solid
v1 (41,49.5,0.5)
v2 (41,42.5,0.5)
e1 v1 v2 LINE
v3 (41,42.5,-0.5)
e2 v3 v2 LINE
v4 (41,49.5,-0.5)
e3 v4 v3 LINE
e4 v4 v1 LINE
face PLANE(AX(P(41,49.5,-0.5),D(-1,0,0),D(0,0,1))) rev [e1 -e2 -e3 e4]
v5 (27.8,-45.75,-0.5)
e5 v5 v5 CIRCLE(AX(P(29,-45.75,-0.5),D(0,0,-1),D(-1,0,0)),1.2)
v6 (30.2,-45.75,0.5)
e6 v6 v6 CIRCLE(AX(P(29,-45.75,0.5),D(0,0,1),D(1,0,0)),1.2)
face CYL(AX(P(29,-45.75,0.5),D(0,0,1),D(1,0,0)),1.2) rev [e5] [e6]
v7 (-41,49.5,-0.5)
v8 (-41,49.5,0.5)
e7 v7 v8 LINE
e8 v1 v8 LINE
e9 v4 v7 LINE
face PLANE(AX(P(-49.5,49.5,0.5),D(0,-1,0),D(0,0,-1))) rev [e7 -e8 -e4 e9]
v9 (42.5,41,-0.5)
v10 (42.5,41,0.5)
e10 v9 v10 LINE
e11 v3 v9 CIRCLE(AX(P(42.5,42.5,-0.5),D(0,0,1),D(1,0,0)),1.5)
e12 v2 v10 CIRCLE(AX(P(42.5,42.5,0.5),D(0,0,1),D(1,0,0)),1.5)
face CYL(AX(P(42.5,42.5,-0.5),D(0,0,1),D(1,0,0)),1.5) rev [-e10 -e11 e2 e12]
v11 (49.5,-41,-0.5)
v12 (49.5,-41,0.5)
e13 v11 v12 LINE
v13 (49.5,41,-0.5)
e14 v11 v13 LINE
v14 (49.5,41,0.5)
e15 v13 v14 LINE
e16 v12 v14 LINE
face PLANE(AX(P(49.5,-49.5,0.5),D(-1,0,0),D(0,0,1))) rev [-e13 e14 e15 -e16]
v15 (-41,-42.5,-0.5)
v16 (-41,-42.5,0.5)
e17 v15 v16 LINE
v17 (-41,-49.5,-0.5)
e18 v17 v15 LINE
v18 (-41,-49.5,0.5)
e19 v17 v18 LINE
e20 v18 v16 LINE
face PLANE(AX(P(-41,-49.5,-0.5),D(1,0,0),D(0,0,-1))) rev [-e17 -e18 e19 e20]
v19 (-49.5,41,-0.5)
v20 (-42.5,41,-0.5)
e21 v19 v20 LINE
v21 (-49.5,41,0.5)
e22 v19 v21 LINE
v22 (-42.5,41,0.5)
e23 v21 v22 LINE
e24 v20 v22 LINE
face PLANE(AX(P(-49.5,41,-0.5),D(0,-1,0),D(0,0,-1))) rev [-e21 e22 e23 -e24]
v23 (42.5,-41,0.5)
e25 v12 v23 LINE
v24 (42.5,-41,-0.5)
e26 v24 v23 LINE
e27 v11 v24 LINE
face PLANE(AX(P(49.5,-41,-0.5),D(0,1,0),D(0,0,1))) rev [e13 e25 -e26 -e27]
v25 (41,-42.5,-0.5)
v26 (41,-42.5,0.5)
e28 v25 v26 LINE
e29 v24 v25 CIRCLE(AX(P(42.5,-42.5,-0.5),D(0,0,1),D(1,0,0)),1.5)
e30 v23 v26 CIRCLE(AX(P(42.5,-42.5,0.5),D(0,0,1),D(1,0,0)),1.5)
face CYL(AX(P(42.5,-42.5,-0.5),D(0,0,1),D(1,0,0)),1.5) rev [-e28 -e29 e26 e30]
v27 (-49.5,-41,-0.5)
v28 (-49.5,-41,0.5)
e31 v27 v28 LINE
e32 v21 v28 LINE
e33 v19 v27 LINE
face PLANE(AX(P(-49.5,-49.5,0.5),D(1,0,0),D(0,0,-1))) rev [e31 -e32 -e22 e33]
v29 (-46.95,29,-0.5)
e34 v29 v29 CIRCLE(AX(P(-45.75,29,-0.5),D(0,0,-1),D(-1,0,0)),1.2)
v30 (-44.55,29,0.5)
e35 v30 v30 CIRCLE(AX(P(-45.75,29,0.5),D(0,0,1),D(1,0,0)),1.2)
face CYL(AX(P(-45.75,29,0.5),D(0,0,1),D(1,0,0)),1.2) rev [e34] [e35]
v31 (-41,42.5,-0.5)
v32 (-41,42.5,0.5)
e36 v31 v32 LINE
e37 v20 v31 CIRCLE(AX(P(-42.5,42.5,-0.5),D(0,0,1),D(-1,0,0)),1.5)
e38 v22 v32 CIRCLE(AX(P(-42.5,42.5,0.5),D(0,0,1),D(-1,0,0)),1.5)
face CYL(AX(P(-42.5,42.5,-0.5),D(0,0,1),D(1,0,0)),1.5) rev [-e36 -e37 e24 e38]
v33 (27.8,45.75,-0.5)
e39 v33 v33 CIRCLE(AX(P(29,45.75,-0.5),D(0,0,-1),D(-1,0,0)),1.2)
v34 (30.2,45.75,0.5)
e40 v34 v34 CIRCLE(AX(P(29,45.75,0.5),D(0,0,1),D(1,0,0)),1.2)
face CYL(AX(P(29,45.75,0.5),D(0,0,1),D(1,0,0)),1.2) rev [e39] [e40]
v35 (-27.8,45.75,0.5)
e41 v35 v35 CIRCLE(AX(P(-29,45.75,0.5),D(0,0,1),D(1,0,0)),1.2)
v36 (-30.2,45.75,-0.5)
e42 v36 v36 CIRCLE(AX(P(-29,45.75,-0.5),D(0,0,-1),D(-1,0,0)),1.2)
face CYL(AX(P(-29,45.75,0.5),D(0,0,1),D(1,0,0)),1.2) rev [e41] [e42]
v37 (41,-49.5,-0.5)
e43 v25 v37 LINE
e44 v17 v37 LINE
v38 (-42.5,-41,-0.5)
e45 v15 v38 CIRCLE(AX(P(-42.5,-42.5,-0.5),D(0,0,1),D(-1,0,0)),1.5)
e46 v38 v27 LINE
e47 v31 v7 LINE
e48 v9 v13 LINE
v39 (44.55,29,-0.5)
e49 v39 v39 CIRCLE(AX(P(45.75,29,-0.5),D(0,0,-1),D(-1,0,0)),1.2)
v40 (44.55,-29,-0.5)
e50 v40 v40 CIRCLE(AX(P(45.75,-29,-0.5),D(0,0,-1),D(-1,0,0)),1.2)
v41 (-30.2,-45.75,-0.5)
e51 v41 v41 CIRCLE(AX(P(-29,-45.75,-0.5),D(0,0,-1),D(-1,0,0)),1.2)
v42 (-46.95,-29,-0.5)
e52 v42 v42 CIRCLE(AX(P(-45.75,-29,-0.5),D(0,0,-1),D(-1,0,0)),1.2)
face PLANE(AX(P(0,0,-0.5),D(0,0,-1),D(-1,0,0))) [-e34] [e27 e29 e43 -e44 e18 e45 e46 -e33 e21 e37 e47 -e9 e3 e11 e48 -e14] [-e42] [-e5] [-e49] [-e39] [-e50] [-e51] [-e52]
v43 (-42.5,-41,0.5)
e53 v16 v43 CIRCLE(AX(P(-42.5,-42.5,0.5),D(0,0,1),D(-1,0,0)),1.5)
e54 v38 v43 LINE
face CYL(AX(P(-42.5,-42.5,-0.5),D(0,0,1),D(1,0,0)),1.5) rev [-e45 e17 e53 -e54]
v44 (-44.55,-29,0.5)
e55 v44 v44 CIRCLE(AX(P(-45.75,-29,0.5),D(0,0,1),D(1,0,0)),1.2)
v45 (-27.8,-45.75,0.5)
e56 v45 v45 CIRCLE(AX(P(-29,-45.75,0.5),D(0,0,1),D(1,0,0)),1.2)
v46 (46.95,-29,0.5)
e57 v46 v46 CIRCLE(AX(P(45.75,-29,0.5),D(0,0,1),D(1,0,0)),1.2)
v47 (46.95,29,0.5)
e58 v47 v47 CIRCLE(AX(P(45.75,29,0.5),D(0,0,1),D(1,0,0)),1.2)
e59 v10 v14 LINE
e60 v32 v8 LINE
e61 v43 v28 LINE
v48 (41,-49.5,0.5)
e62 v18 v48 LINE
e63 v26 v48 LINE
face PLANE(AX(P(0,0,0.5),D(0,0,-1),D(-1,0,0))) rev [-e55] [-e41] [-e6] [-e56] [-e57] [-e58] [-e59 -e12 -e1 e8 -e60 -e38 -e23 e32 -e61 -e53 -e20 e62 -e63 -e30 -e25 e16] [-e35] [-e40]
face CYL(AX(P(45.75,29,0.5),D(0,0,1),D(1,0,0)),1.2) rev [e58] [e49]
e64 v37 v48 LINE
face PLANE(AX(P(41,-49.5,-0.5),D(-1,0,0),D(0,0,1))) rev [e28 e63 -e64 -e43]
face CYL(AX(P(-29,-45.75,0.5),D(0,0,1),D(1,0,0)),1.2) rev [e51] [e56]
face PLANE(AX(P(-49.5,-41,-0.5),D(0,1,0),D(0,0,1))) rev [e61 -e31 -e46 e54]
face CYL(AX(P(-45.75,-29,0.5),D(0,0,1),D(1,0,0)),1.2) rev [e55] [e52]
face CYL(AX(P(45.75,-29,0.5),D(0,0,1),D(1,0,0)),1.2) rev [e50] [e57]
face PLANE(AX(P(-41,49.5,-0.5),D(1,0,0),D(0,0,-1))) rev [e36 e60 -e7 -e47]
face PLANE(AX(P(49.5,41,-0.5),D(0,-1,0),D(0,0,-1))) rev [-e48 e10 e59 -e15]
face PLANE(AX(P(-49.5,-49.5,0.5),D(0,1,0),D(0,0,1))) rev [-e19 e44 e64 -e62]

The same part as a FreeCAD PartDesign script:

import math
import FreeCAD as App
import Part
import Sketcher

V = App.Vector


def add_polygon(sketch, points):
    """Adds a closed chain of lines whose ends are joined by coincident constraints."""
    first, n = sketch.GeometryCount, len(points)
    for a, b in zip(points, points[1:] + points[:1]):
        sketch.addGeometry(Part.LineSegment(App.Vector(*a, 0), App.Vector(*b, 0)), False)
    for i in range(n):
        sketch.addConstraint(Sketcher.Constraint("Coincident", first + i, 2, first + (i + 1) % n, 1))

doc = App.newDocument("Part")
body = doc.addObject("PartDesign::Body", "Body")

# Sketch on XY plane
sketch1 = body.newObject("Sketcher::SketchObject", "Sketch")
sketch1.AttachmentSupport = (doc.getObject("XY_Plane"), [""])
sketch1.MapMode = "FlatFace"
add_polygon(sketch1, [(-49.5, 49.5), (-49.5, -49.5), (49.5, -49.5), (49.5, 49.5)])  # lines 0-3
sketch1.addConstraint([
    Sketcher.Constraint("Vertical", 0),
    Sketcher.Constraint("Horizontal", 1),
    Sketcher.Constraint("Vertical", 2),
    Sketcher.Constraint("Horizontal", 3),
    Sketcher.Constraint("Symmetric", 0, 2, 2, 2, -1, 1),
    Sketcher.Constraint("Equal", 3, 0),
    Sketcher.Constraint("DistanceX", 1, 1, 1, 2, 99.0),
])
pad1 = body.newObject("PartDesign::Pad", "Pad")
pad1.Profile = sketch1
pad1.Length = 1
pad1.Midplane = True

# Sketch on XY plane
sketch2 = body.newObject("Sketcher::SketchObject", "Sketch001")
sketch2.AttachmentSupport = (doc.getObject("XY_Plane"), [""])
sketch2.MapMode = "FlatFace"
sketch2.AttachmentOffset = App.Placement(V(0, 0, 0.5), App.Rotation())
sketch2.addGeometry([
    Part.LineSegment(V(-41, 49.5, 0), V(-49.5, 49.5, 0)),  # 0
    Part.LineSegment(V(-49.5, 49.5, 0), V(-49.5, 41, 0)),  # 1
    Part.LineSegment(V(-49.5, 41, 0), V(-42.5, 41, 0)),  # 2
    Part.ArcOfCircle(Part.Circle(V(-42.5, 42.5, 0), V(0, 0, 1), 1.5), math.radians(-90), math.radians(0)),  # 3
    Part.LineSegment(V(-41, 42.5, 0), V(-41, 49.5, 0)),  # 4
    Part.LineSegment(V(49.5, 49.5, 0), V(41, 49.5, 0)),  # 5
    Part.LineSegment(V(41, 49.5, 0), V(41, 42.5, 0)),  # 6
    Part.ArcOfCircle(Part.Circle(V(42.5, 42.5, 0), V(0, 0, 1), 1.5), math.radians(180), math.radians(270)),  # 7
    Part.LineSegment(V(42.5, 41, 0), V(49.5, 41, 0)),  # 8
    Part.LineSegment(V(49.5, 41, 0), V(49.5, 49.5, 0)),  # 9
    Part.LineSegment(V(-49.5, -49.5, 0), V(-41, -49.5, 0)),  # 10
    Part.LineSegment(V(-41, -49.5, 0), V(-41, -42.5, 0)),  # 11
    Part.ArcOfCircle(Part.Circle(V(-42.5, -42.5, 0), V(0, 0, 1), 1.5), math.radians(0), math.radians(90)),  # 12
    Part.LineSegment(V(-42.5, -41, 0), V(-49.5, -41, 0)),  # 13
    Part.LineSegment(V(-49.5, -41, 0), V(-49.5, -49.5, 0)),  # 14
    Part.LineSegment(V(41, -49.5, 0), V(49.5, -49.5, 0)),  # 15
    Part.LineSegment(V(49.5, -49.5, 0), V(49.5, -41, 0)),  # 16
    Part.LineSegment(V(49.5, -41, 0), V(42.5, -41, 0)),  # 17
    Part.ArcOfCircle(Part.Circle(V(42.5, -42.5, 0), V(0, 0, 1), 1.5), math.radians(90), math.radians(180)),  # 18
    Part.LineSegment(V(41, -42.5, 0), V(41, -49.5, 0)),  # 19
], False)
sketch2.addConstraint([
    Sketcher.Constraint("Coincident", 0, 2, 1, 1),
    Sketcher.Constraint("Coincident", 1, 2, 2, 1),
    Sketcher.Constraint("Tangent", 2, 2, 3, 1),
    Sketcher.Constraint("Tangent", 3, 2, 4, 1),
    Sketcher.Constraint("Coincident", 4, 2, 0, 1),
    Sketcher.Constraint("Coincident", 5, 2, 6, 1),
    Sketcher.Constraint("Tangent", 6, 2, 7, 1),
    Sketcher.Constraint("Tangent", 7, 2, 8, 1),
    Sketcher.Constraint("Coincident", 8, 2, 9, 1),
    Sketcher.Constraint("Coincident", 9, 2, 5, 1),
    Sketcher.Constraint("Coincident", 10, 2, 11, 1),
    Sketcher.Constraint("Tangent", 11, 2, 12, 1),
    Sketcher.Constraint("Tangent", 12, 2, 13, 1),
    Sketcher.Constraint("Coincident", 13, 2, 14, 1),
    Sketcher.Constraint("Coincident", 14, 2, 10, 1),
    Sketcher.Constraint("Coincident", 15, 2, 16, 1),
    Sketcher.Constraint("Coincident", 16, 2, 17, 1),
    Sketcher.Constraint("Tangent", 17, 2, 18, 1),
    Sketcher.Constraint("Tangent", 18, 2, 19, 1),
    Sketcher.Constraint("Coincident", 19, 2, 15, 1),
    Sketcher.Constraint("Horizontal", 0),
    Sketcher.Constraint("Vertical", 1),
    Sketcher.Constraint("Horizontal", 2),
    Sketcher.Constraint("Vertical", 4),
    Sketcher.Constraint("Horizontal", 5),
    Sketcher.Constraint("Vertical", 6),
    Sketcher.Constraint("Horizontal", 8),
    Sketcher.Constraint("Vertical", 9),
    Sketcher.Constraint("Horizontal", 10),
    Sketcher.Constraint("Vertical", 11),
    Sketcher.Constraint("Horizontal", 13),
    Sketcher.Constraint("Vertical", 14),
    Sketcher.Constraint("Horizontal", 15),
    Sketcher.Constraint("Vertical", 16),
    Sketcher.Constraint("Horizontal", 17),
    Sketcher.Constraint("Vertical", 19),
    Sketcher.Constraint("Equal", 3, 7),
    Sketcher.Constraint("Equal", 7, 12),
    Sketcher.Constraint("Equal", 12, 18),
    Sketcher.Constraint("Symmetric", 7, 3, 12, 3, -1, 1),
    Sketcher.Constraint("Symmetric", 3, 3, 18, 3, -1, 1),
    Sketcher.Constraint("Symmetric", 9, 2, 14, 2, -1, 1),
    Sketcher.Constraint("Symmetric", 0, 2, 15, 2, -1, 1),
    Sketcher.Constraint("Symmetric", 3, 3, 7, 3, -2),
    Sketcher.Constraint("Symmetric", 0, 2, 9, 2, -2),
    Sketcher.Constraint("Equal", 15, 1),
    Sketcher.Constraint("Radius", 3, 1.5),
    Sketcher.Constraint("DistanceX", 2, 1, 2, 2, 7.0),
    Sketcher.Constraint("DistanceY", -1, 1, 1, 2, 41.0),
    Sketcher.Constraint("DistanceX", 3, 2, -1, 1, 41.0),
])
pocket1 = body.newObject("PartDesign::Pocket", "Pocket")
pocket1.Profile = sketch2
pocket1.Type = "ThroughAll"

# Sketch on XY plane
sketch3 = body.newObject("Sketcher::SketchObject", "Sketch002")
sketch3.AttachmentSupport = (doc.getObject("XY_Plane"), [""])
sketch3.MapMode = "FlatFace"
sketch3.AttachmentOffset = App.Placement(V(0, 0, 0.5), App.Rotation())
sketch3.addGeometry([
    Part.Circle(V(-45.75, 29, 0), V(0, 0, 1), 1.2),  # 0
    Part.Circle(V(-29, 45.75, 0), V(0, 0, 1), 1.2),  # 1
    Part.Circle(V(29, 45.75, 0), V(0, 0, 1), 1.2),  # 2
    Part.Circle(V(45.75, 29, 0), V(0, 0, 1), 1.2),  # 3
    Part.Circle(V(45.75, -29, 0), V(0, 0, 1), 1.2),  # 4
    Part.Circle(V(29, -45.75, 0), V(0, 0, 1), 1.2),  # 5
    Part.Circle(V(-29, -45.75, 0), V(0, 0, 1), 1.2),  # 6
    Part.Circle(V(-45.75, -29, 0), V(0, 0, 1), 1.2),  # 7
], False)
sketch3.addConstraint([
    Sketcher.Constraint("Equal", 0, 1),
    Sketcher.Constraint("Equal", 1, 2),
    Sketcher.Constraint("Equal", 2, 3),
    Sketcher.Constraint("Equal", 3, 4),
    Sketcher.Constraint("Equal", 4, 5),
    Sketcher.Constraint("Equal", 5, 6),
    Sketcher.Constraint("Equal", 6, 7),
    Sketcher.Constraint("Symmetric", 0, 3, 4, 3, -1, 1),
    Sketcher.Constraint("Symmetric", 1, 3, 5, 3, -1, 1),
    Sketcher.Constraint("Symmetric", 2, 3, 6, 3, -1, 1),
    Sketcher.Constraint("Symmetric", 3, 3, 7, 3, -1, 1),
    Sketcher.Constraint("Symmetric", 1, 3, 2, 3, -2),
    Sketcher.Constraint("Symmetric", 0, 3, 3, 3, -2),
    Sketcher.Constraint("Diameter", 0, 2.4),
    Sketcher.Constraint("DistanceY", -1, 1, 0, 3, 29.0),
    Sketcher.Constraint("DistanceX", 1, 3, -1, 1, 29.0),
    Sketcher.Constraint("DistanceX", 0, 3, 3, 3, 91.5),
    Sketcher.Constraint("DistanceY", 5, 3, 2, 3, 91.5),
])
doc.recompute()
hole = body.newObject("PartDesign::Hole", "Hole")
hole.Profile = sketch3
hole.ThreadType = "None"
hole.Diameter = 2.4
hole.DepthType = "Dimension"
hole.Depth = 3
hole.DrillPoint = "Angled"
hole.DrillPointAngle = 118

doc.recompute()
